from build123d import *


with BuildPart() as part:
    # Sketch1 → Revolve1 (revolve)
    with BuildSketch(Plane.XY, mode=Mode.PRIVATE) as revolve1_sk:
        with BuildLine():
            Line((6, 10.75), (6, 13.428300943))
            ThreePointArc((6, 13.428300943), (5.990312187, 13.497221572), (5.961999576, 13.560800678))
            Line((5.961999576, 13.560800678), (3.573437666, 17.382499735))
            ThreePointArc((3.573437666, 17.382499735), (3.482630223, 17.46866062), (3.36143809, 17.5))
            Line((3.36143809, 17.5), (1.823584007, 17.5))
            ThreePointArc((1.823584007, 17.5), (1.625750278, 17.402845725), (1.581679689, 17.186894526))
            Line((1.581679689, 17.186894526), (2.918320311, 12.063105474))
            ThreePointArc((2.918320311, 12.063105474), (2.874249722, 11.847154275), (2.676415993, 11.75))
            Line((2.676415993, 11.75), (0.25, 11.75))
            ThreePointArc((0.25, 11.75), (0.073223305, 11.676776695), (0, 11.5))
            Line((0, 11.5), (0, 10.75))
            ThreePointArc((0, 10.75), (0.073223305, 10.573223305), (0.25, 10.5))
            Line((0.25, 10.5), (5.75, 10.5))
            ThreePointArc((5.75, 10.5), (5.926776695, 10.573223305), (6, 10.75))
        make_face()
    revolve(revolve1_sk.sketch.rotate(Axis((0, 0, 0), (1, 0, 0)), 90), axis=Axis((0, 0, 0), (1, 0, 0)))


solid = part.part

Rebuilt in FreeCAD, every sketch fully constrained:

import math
import FreeCAD as App
import Part
import Sketcher
Q = App.Units.Quantity

doc = App.newDocument("Part")
body = doc.addObject("PartDesign::Body", "Body")

# Sketch on XY plane
sketch1 = body.newObject("Sketcher::SketchObject", "Sketch")
sketch1.AttachmentSupport = (doc.getObject("XY_Plane"), [""])
sketch1.MapMode = "FlatFace"
sketch1.addGeometry(Part.LineSegment(App.Vector(6, 10.75, 0), App.Vector(6, 13.43, 0)), False)
sketch1.addGeometry(Part.ArcOfCircle(Part.Circle(App.Vector(5.75, 13.43, 0), App.Vector(0, 0, 1), 0.25), math.radians(0), math.radians(32)), False)
sketch1.addGeometry(Part.LineSegment(App.Vector(5.96, 13.56, 0), App.Vector(3.57, 17.38, 0)), False)
sketch1.addGeometry(Part.ArcOfCircle(Part.Circle(App.Vector(3.36, 17.25, 0), App.Vector(0, 0, 1), 0.25), math.radians(32), math.radians(90)), False)
sketch1.addGeometry(Part.LineSegment(App.Vector(3.36, 17.5, 0), App.Vector(1.82, 17.5, 0)), False)
sketch1.addGeometry(Part.ArcOfCircle(Part.Circle(App.Vector(1.82, 17.25, 0), App.Vector(0, 0, 1), 0.25), math.radians(90), math.radians(195)), False)
sketch1.addGeometry(Part.LineSegment(App.Vector(1.58, 17.19, 0), App.Vector(2.92, 12.06, 0)), False)
sketch1.addGeometry(Part.ArcOfCircle(Part.Circle(App.Vector(2.68, 12, 0), App.Vector(0, 0, 1), 0.25), math.radians(-90), math.radians(15)), False)
sketch1.addGeometry(Part.LineSegment(App.Vector(2.68, 11.75, 0), App.Vector(0.25, 11.75, 0)), False)
sketch1.addGeometry(Part.ArcOfCircle(Part.Circle(App.Vector(0.25, 11.5, 0), App.Vector(0, 0, 1), 0.25), math.radians(90), math.radians(180)), False)
sketch1.addGeometry(Part.LineSegment(App.Vector(0, 11.5, 0), App.Vector(0, 10.75, 0)), False)
sketch1.addGeometry(Part.ArcOfCircle(Part.Circle(App.Vector(0.25, 10.75, 0), App.Vector(0, 0, 1), 0.25), math.radians(-180), math.radians(-90)), False)
sketch1.addGeometry(Part.LineSegment(App.Vector(0.25, 10.5, 0), App.Vector(5.75, 10.5, 0)), False)
sketch1.addGeometry(Part.ArcOfCircle(Part.Circle(App.Vector(5.75, 10.75, 0), App.Vector(0, 0, 1), 0.25), math.radians(-90), math.radians(0)), False)
sketch1.addConstraint(Sketcher.Constraint("Tangent", 0, 2, 1, 1))
sketch1.addConstraint(Sketcher.Constraint("Tangent", 1, 2, 2, 1))
sketch1.addConstraint(Sketcher.Constraint("Tangent", 2, 2, 3, 1))
sketch1.addConstraint(Sketcher.Constraint("Tangent", 3, 2, 4, 1))
sketch1.addConstraint(Sketcher.Constraint("Tangent", 4, 2, 5, 1))
sketch1.addConstraint(Sketcher.Constraint("Tangent", 5, 2, 6, 1))
sketch1.addConstraint(Sketcher.Constraint("Tangent", 6, 2, 7, 2))
sketch1.addConstraint(Sketcher.Constraint("Tangent", 7, 1, 8, 1))
sketch1.addConstraint(Sketcher.Constraint("Tangent", 8, 2, 9, 1))
sketch1.addConstraint(Sketcher.Constraint("Tangent", 9, 2, 10, 1))
sketch1.addConstraint(Sketcher.Constraint("Tangent", 10, 2, 11, 1))
sketch1.addConstraint(Sketcher.Constraint("Tangent", 11, 2, 12, 1))
sketch1.addConstraint(Sketcher.Constraint("Tangent", 12, 2, 13, 1))
sketch1.addConstraint(Sketcher.Constraint("Tangent", 13, 2, 0, 1))
sketch1.addConstraint(Sketcher.Constraint("Vertical", 0))
sketch1.addConstraint(Sketcher.Constraint("Horizontal", 4))
sketch1.addConstraint(Sketcher.Constraint("Horizontal", 8))
sketch1.addConstraint(Sketcher.Constraint("Vertical", 10))
sketch1.addConstraint(Sketcher.Constraint("Horizontal", 12))
sketch1.addConstraint(Sketcher.Constraint("Equal", 1, 3))
sketch1.addConstraint(Sketcher.Constraint("Equal", 3, 5))
sketch1.addConstraint(Sketcher.Constraint("Equal", 5, 7))
sketch1.addConstraint(Sketcher.Constraint("Equal", 7, 9))
sketch1.addConstraint(Sketcher.Constraint("Equal", 9, 11))
sketch1.addConstraint(Sketcher.Constraint("Equal", 11, 13))
sketch1.addConstraint(Sketcher.Constraint("PointOnObject", 9, 2, -2))
sketch1.addConstraint(Sketcher.Constraint("Radius", 1, Q("0.25 mm")))
sketch1.addConstraint(Sketcher.Constraint("DistanceX", 12, 1, 12, 2, Q("5.5 mm")))
sketch1.addConstraint(Sketcher.Constraint("DistanceY", -1, 1, 7, 3, Q("12 mm")))
sketch1.addConstraint(Sketcher.Constraint("DistanceY", 11, 3, 7, 1, Q("1 mm")))
sketch1.addConstraint(Sketcher.Constraint("DistanceY", -1, 1, 3, 2, Q("17.5 mm")))
sketch1.addConstraint(Sketcher.Constraint("DistanceY", 0, 1, 0, 2, Q("2.678301 mm")))
sketch1.addConstraint(Sketcher.Constraint("DistanceX", -1, 1, 1, 2, Q("5.962 mm")))
sketch1.addConstraint(Sketcher.Constraint("DistanceX", 4, 2, 4, 1, Q("1.537854 mm")))
sketch1.addConstraint(Sketcher.Constraint("DistanceX", 8, 2, 8, 1, Q("2.426416 mm")))
revolution = body.newObject("PartDesign::Revolution", "Revolution")
revolution.Profile = sketch1
revolution.ReferenceAxis = (sketch1, ["H_Axis"])
revolution.Angle = 360

doc.recompute()
